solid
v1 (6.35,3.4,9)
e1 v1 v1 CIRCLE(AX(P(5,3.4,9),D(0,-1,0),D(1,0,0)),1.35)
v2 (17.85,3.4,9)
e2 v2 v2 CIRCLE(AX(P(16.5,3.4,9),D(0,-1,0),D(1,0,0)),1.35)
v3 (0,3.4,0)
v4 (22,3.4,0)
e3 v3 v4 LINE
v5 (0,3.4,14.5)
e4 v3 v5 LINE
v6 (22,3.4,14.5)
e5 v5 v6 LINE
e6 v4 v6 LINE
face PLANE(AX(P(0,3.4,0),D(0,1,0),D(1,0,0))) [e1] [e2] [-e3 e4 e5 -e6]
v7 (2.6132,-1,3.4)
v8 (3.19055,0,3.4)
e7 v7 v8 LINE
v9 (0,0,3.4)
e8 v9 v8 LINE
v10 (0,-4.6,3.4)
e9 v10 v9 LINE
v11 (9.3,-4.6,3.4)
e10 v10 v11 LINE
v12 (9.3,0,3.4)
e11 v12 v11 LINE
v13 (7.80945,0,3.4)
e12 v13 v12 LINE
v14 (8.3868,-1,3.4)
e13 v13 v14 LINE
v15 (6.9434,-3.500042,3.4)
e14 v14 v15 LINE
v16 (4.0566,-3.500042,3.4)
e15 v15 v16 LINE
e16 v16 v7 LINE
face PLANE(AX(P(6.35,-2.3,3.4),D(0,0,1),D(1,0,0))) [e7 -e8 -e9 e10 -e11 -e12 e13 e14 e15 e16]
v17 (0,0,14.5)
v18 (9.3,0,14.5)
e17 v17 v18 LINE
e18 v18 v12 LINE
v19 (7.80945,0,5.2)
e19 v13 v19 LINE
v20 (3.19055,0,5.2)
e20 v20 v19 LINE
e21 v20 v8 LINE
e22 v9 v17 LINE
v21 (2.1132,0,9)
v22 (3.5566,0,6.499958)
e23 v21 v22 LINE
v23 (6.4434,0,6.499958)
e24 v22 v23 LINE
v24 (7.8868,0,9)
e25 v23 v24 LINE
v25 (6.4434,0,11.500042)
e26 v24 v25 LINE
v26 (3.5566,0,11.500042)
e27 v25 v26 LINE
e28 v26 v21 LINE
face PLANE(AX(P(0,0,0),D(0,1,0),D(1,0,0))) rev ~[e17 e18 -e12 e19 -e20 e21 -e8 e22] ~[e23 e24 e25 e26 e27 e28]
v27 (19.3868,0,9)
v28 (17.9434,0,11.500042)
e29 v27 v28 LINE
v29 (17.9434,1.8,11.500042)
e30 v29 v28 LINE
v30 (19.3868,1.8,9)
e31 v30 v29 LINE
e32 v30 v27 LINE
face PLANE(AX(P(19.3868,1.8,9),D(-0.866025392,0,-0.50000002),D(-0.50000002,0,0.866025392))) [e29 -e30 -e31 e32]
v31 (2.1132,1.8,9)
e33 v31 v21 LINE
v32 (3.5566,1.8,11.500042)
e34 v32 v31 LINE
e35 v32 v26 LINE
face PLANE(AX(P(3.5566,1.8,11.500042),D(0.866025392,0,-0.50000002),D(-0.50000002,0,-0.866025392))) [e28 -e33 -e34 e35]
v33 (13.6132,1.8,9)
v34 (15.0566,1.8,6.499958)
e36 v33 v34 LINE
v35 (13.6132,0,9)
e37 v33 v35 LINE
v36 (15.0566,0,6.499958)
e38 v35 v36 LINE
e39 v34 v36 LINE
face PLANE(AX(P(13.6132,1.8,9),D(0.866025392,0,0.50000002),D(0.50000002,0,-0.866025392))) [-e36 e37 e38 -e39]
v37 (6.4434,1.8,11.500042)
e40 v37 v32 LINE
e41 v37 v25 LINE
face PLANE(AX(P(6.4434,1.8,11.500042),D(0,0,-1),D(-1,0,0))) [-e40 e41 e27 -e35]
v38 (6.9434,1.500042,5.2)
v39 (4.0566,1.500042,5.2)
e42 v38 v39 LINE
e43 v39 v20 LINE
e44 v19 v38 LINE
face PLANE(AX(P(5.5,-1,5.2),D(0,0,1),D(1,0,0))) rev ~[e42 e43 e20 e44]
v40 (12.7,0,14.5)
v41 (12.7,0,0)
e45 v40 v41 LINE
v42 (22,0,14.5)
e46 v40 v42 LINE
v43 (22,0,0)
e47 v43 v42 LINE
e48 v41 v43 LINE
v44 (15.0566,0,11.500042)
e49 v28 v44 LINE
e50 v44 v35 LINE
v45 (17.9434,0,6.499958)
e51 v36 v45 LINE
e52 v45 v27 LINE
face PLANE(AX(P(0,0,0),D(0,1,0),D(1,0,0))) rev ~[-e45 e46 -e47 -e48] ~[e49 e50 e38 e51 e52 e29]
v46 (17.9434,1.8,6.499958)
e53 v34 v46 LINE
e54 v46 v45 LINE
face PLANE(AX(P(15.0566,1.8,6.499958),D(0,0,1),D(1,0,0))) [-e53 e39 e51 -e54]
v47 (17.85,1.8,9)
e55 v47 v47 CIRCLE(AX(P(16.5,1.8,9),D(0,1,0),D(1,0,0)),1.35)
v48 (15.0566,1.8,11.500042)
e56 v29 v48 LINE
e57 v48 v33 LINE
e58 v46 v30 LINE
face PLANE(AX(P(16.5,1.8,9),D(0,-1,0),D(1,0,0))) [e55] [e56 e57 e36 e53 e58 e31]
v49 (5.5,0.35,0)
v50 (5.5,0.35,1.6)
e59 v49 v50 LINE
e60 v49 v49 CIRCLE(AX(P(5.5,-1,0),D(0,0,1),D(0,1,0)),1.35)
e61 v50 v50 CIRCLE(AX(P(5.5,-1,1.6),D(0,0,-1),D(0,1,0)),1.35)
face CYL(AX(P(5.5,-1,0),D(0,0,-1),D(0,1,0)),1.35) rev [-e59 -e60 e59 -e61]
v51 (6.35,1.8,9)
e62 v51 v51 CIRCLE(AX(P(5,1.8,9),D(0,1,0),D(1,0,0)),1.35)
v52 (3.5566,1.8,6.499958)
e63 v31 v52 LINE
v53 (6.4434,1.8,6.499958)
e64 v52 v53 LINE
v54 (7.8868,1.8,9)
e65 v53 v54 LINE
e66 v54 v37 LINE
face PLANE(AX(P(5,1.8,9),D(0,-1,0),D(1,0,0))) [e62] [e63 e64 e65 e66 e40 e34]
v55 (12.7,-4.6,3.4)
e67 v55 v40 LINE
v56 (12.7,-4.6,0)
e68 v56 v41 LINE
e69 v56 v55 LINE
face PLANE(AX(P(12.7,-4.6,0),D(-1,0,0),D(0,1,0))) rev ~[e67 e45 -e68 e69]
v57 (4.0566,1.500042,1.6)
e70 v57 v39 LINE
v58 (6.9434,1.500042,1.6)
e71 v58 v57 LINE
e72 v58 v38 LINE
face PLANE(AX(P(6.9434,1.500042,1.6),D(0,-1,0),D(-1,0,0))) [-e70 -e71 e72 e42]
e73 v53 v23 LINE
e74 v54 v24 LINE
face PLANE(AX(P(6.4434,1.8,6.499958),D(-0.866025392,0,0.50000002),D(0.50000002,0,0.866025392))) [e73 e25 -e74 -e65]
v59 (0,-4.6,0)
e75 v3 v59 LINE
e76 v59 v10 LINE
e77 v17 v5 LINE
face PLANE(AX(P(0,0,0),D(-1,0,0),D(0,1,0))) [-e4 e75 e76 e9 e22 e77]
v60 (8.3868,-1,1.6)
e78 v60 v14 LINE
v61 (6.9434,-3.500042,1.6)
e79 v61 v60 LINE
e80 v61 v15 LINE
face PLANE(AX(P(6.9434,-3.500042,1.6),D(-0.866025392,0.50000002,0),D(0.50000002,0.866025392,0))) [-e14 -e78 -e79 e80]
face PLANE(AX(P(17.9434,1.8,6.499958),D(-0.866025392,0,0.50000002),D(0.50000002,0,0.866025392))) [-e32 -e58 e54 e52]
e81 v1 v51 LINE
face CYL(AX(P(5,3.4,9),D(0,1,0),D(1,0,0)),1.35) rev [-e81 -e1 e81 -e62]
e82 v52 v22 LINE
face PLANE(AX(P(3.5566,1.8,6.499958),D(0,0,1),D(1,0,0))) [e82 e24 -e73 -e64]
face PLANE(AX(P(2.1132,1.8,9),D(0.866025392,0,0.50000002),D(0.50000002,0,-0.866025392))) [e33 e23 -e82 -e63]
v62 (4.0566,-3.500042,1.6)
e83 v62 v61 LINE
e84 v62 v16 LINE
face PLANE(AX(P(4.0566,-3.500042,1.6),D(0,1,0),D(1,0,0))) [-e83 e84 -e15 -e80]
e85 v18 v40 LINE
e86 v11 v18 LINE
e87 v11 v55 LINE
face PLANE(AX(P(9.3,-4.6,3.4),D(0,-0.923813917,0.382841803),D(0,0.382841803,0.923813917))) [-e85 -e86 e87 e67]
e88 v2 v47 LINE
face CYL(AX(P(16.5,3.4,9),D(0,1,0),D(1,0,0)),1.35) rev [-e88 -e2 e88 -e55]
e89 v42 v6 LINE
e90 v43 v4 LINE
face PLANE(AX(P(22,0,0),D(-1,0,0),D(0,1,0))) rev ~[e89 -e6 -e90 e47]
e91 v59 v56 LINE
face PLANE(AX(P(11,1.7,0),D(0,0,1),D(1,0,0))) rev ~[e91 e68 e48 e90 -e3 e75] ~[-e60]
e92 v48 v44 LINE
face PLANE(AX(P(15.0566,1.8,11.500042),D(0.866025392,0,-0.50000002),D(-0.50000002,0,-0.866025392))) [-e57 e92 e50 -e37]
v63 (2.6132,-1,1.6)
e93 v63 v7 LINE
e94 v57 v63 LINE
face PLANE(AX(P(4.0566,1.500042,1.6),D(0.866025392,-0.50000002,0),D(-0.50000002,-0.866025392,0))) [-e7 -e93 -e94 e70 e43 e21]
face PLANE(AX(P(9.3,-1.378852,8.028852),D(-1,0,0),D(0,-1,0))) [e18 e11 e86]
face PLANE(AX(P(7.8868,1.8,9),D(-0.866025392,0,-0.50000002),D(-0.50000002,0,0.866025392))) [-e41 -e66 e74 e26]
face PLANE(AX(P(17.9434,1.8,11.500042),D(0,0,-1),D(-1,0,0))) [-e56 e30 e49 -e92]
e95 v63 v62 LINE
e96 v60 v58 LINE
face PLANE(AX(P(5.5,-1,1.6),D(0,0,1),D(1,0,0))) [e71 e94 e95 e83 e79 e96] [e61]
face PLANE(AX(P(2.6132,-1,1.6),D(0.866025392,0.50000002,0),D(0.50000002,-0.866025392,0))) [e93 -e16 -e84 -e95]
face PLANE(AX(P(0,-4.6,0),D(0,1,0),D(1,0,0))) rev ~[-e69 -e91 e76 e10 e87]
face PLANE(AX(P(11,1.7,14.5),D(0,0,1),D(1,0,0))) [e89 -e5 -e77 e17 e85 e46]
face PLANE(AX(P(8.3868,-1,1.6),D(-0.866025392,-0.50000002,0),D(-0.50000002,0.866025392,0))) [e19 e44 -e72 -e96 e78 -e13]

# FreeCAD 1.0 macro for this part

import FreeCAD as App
import Part
import Sketcher
from FreeCAD import Vector
Q = App.Units.Quantity

doc = App.newDocument("Part")
params = doc.addObject("Spreadsheet::Sheet", "Params")
for row, (alias, value) in enumerate([
    ("pad1_length", "3.6 mm"),
    ("sketch2_diameter", "2.7 mm"),
    ("pad2_length", "3.4 mm"),
    ("pad3_length", "1.8 mm"),
    ("sketch4_diameter", "2.7 mm"),
    ("pad4_length", "3.4 mm"),
    ("pad5_length", "1.8 mm"),
    ("sketch6_diameter", "2.7 mm"),
    ("pad6_length", "3.4 mm"),
    ("sketch7_width", "22 mm"),
    ("sketch7_height", "3.4 mm"),
    ("pad7_length", "14.5 mm"),
    ("sketch8_width", "12.7 mm"),
    ("sketch8_height", "4.6 mm"),
    ("pad8_length", "3.4 mm"),
    ("sketch9_width", "4.6 mm"),
    ("sketch9_height", "11.1 mm"),
    ("pad9_length", "3.4 mm"),
], start=1):
    params.set(f"A{row}", alias)
    params.set(f"B{row}", "=" + value)
    params.setAlias(f"B{row}", alias)

body = doc.addObject("PartDesign::Body", "Body")

# Sketch on XY plane
sketch1 = body.newObject("Sketcher::SketchObject", "Sketch")
sketch1.AttachmentSupport = (doc.getObject("XY_Plane"), [""])
sketch1.MapMode = "FlatFace"
sketch1.AttachmentOffset = App.Placement(Vector(0, 0, 1.6), App.Rotation())
sketch1.addGeometry([
    Part.LineSegment(Vector(8.4, -1, 0), Vector(6.9, 1.5, 0)),  # 0
    Part.LineSegment(Vector(6.9, 1.5, 0), Vector(4.1, 1.5, 0)),  # 1
    Part.LineSegment(Vector(4.1, 1.5, 0), Vector(2.6, -1, 0)),  # 2
    Part.LineSegment(Vector(2.6, -1, 0), Vector(4.1, -3.5, 0)),  # 3
    Part.LineSegment(Vector(4.1, -3.5, 0), Vector(6.9, -3.5, 0)),  # 4
    Part.LineSegment(Vector(6.9, -3.5, 0), Vector(8.4, -1, 0)),  # 5
], False)
sketch1.addConstraint([
    Sketcher.Constraint("Coincident", 0, 2, 1, 1),
    Sketcher.Constraint("Coincident", 1, 2, 2, 1),
    Sketcher.Constraint("Coincident", 2, 2, 3, 1),
    Sketcher.Constraint("Coincident", 3, 2, 4, 1),
    Sketcher.Constraint("Coincident", 4, 2, 5, 1),
    Sketcher.Constraint("Coincident", 5, 2, 0, 1),
    Sketcher.Constraint("Horizontal", 1),
    Sketcher.Constraint("Horizontal", 4),
    Sketcher.Constraint("Parallel", 0, 3),
    Sketcher.Constraint("Parallel", 2, 5),
    Sketcher.Constraint("Horizontal", 2, 2, 5, 2),
    Sketcher.Constraint("Vertical", 1, 2, 3, 2),
    Sketcher.Constraint("Vertical", 0, 2, 4, 2),
    Sketcher.Constraint("Angle", 0, Q("120.000001 deg")),
    Sketcher.Constraint("DistanceY", 2, 2, -1, 1, Q("1 mm")),
    Sketcher.Constraint("DistanceX", 1, 2, 1, 1, Q("2.8868 mm")),
    Sketcher.Constraint("Distance", 0, Q("2.8868 mm")),
    Sketcher.Constraint("DistanceX", -1, 1, 0, 2, Q("6.9434 mm")),
])
pad1 = body.newObject("PartDesign::Pad", "Pad")
pad1.Profile = sketch1
pad1.setExpression("Length", "Params.pad1_length")
body2 = doc.addObject("PartDesign::Body", "Body001")

# Sketch on XY plane
sketch2 = body2.newObject("Sketcher::SketchObject", "Sketch001")
sketch2.AttachmentSupport = (doc.getObject("XY_Plane001"), [""])
sketch2.MapMode = "FlatFace"
sketch2.addGeometry(Part.Circle(Vector(5.5, -1, 0), Vector(0, 0, 1), 1.4), False)
sketch2.addConstraint([
    Sketcher.Constraint("Diameter", 0, Q("2.7 mm")),
    Sketcher.Constraint("DistanceY", 0, 3, -1, 1, Q("1 mm")),
    Sketcher.Constraint("DistanceX", -1, 1, 0, 3, Q("5.5 mm")),
])
sketch2.setExpression("Constraints[0]", "Params.sketch2_diameter")
pad2 = body2.newObject("PartDesign::Pad", "Pad001")
pad2.Profile = sketch2
pad2.setExpression("Length", "Params.pad2_length")
doc.recompute()

boolean = body2.newObject("PartDesign::Boolean", "Boolean")
boolean.Type = "Fuse"
boolean.addObjects([body])
body3 = doc.addObject("PartDesign::Body", "Body002")

# Sketch on XZ plane
sketch3 = body3.newObject("Sketcher::SketchObject", "Sketch002")
sketch3.AttachmentSupport = (doc.getObject("XZ_Plane002"), [""])
sketch3.MapMode = "FlatFace"
sketch3.AttachmentOffset = App.Placement(Vector(0, 0, -1.8), App.Rotation())
sketch3.addGeometry([
    Part.LineSegment(Vector(19.4, 9, 0), Vector(17.9, 11.5, 0)),  # 0
    Part.LineSegment(Vector(17.9, 11.5, 0), Vector(15.1, 11.5, 0)),  # 1
    Part.LineSegment(Vector(15.1, 11.5, 0), Vector(13.6, 9, 0)),  # 2
    Part.LineSegment(Vector(13.6, 9, 0), Vector(15.1, 6.5, 0)),  # 3
    Part.LineSegment(Vector(15.1, 6.5, 0), Vector(17.9, 6.5, 0)),  # 4
    Part.LineSegment(Vector(17.9, 6.5, 0), Vector(19.4, 9, 0)),  # 5
], False)
sketch3.addConstraint([
    Sketcher.Constraint("Coincident", 0, 2, 1, 1),
    Sketcher.Constraint("Coincident", 1, 2, 2, 1),
    Sketcher.Constraint("Coincident", 2, 2, 3, 1),
    Sketcher.Constraint("Coincident", 3, 2, 4, 1),
    Sketcher.Constraint("Coincident", 4, 2, 5, 1),
    Sketcher.Constraint("Coincident", 5, 2, 0, 1),
    Sketcher.Constraint("Horizontal", 1),
    Sketcher.Constraint("Horizontal", 4),
    Sketcher.Constraint("Parallel", 0, 3),
    Sketcher.Constraint("Parallel", 2, 5),
    Sketcher.Constraint("Horizontal", 2, 2, 5, 2),
    Sketcher.Constraint("Vertical", 1, 2, 3, 2),
    Sketcher.Constraint("Vertical", 0, 2, 4, 2),
    Sketcher.Constraint("Angle", 0, Q("120.000001 deg")),
    Sketcher.Constraint("DistanceY", -1, 1, 2, 2, Q("9 mm")),
    Sketcher.Constraint("DistanceX", 1, 2, 1, 1, Q("2.8868 mm")),
    Sketcher.Constraint("Distance", 0, Q("2.8868 mm")),
    Sketcher.Constraint("DistanceX", -1, 1, 0, 2, Q("17.9434 mm")),
])
pad3 = body3.newObject("PartDesign::Pad", "Pad002")
pad3.Profile = sketch3
pad3.setExpression("Length", "Params.pad3_length")
body4 = doc.addObject("PartDesign::Body", "Body003")

# Sketch on XZ plane
sketch4 = body4.newObject("Sketcher::SketchObject", "Sketch003")
sketch4.AttachmentSupport = (doc.getObject("XZ_Plane003"), [""])
sketch4.MapMode = "FlatFace"
sketch4.AttachmentOffset = App.Placement(Vector(0, 0, -3.4), App.Rotation())
sketch4.addGeometry(Part.Circle(Vector(16.5, 9, 0), Vector(0, 0, 1), 1.4), False)
sketch4.addConstraint([
    Sketcher.Constraint("Diameter", 0, Q("2.7 mm")),
    Sketcher.Constraint("DistanceY", -1, 1, 0, 3, Q("9 mm")),
    Sketcher.Constraint("DistanceX", -1, 1, 0, 3, Q("16.5 mm")),
])
sketch4.setExpression("Constraints[0]", "Params.sketch4_diameter")
pad4 = body4.newObject("PartDesign::Pad", "Pad003")
pad4.Profile = sketch4
pad4.setExpression("Length", "Params.pad4_length")
doc.recompute()

boolean2 = body4.newObject("PartDesign::Boolean", "Boolean001")
boolean2.Type = "Fuse"
boolean2.addObjects([body3])
body5 = doc.addObject("PartDesign::Body", "Body004")

# Sketch on XZ plane
sketch5 = body5.newObject("Sketcher::SketchObject", "Sketch004")
sketch5.AttachmentSupport = (doc.getObject("XZ_Plane004"), [""])
sketch5.MapMode = "FlatFace"
sketch5.AttachmentOffset = App.Placement(Vector(0, 0, -1.8), App.Rotation())
sketch5.addGeometry([
    Part.LineSegment(Vector(7.9, 9, 0), Vector(6.4, 11.5, 0)),  # 0
    Part.LineSegment(Vector(6.4, 11.5, 0), Vector(3.6, 11.5, 0)),  # 1
    Part.LineSegment(Vector(3.6, 11.5, 0), Vector(2.1, 9, 0)),  # 2
    Part.LineSegment(Vector(2.1, 9, 0), Vector(3.6, 6.5, 0)),  # 3
    Part.LineSegment(Vector(3.6, 6.5, 0), Vector(6.4, 6.5, 0)),  # 4
    Part.LineSegment(Vector(6.4, 6.5, 0), Vector(7.9, 9, 0)),  # 5
], False)
sketch5.addConstraint([
    Sketcher.Constraint("Coincident", 0, 2, 1, 1),
    Sketcher.Constraint("Coincident", 1, 2, 2, 1),
    Sketcher.Constraint("Coincident", 2, 2, 3, 1),
    Sketcher.Constraint("Coincident", 3, 2, 4, 1),
    Sketcher.Constraint("Coincident", 4, 2, 5, 1),
    Sketcher.Constraint("Coincident", 5, 2, 0, 1),
    Sketcher.Constraint("Horizontal", 1),
    Sketcher.Constraint("Horizontal", 4),
    Sketcher.Constraint("Parallel", 0, 3),
    Sketcher.Constraint("Parallel", 2, 5),
    Sketcher.Constraint("Horizontal", 2, 2, 5, 2),
    Sketcher.Constraint("Vertical", 1, 2, 3, 2),
    Sketcher.Constraint("Vertical", 0, 2, 4, 2),
    Sketcher.Constraint("Angle", 0, Q("120.000001 deg")),
    Sketcher.Constraint("DistanceY", -1, 1, 2, 2, Q("9 mm")),
    Sketcher.Constraint("DistanceX", 1, 2, 1, 1, Q("2.8868 mm")),
    Sketcher.Constraint("Distance", 0, Q("2.8868 mm")),
    Sketcher.Constraint("DistanceX", -1, 1, 0, 2, Q("6.4434 mm")),
])
pad5 = body5.newObject("PartDesign::Pad", "Pad004")
pad5.Profile = sketch5
pad5.setExpression("Length", "Params.pad5_length")
body6 = doc.addObject("PartDesign::Body", "Body005")

# Sketch on XZ plane
sketch6 = body6.newObject("Sketcher::SketchObject", "Sketch005")
sketch6.AttachmentSupport = (doc.getObject("XZ_Plane005"), [""])
sketch6.MapMode = "FlatFace"
sketch6.AttachmentOffset = App.Placement(Vector(0, 0, -3.4), App.Rotation())
sketch6.addGeometry(Part.Circle(Vector(5, 9, 0), Vector(0, 0, 1), 1.4), False)
sketch6.addConstraint([
    Sketcher.Constraint("Diameter", 0, Q("2.7 mm")),
    Sketcher.Constraint("DistanceX", -1, 1, 0, 3, Q("5 mm")),
    Sketcher.Constraint("DistanceY", -1, 1, 0, 3, Q("9 mm")),
])
sketch6.setExpression("Constraints[0]", "Params.sketch6_diameter")
pad6 = body6.newObject("PartDesign::Pad", "Pad005")
pad6.Profile = sketch6
pad6.setExpression("Length", "Params.pad6_length")
doc.recompute()

boolean3 = body6.newObject("PartDesign::Boolean", "Boolean002")
boolean3.Type = "Fuse"
boolean3.addObjects([body5])
body7 = doc.addObject("PartDesign::Body", "Body006")

# Sketch on XY plane
sketch7 = body7.newObject("Sketcher::SketchObject", "Sketch006")
sketch7.AttachmentSupport = (doc.getObject("XY_Plane006"), [""])
sketch7.MapMode = "FlatFace"
sketch7.addGeometry([
    Part.LineSegment(Vector(0, 3.4, 0), Vector(0, 0, 0)),
    Part.LineSegment(Vector(0, 0, 0), Vector(22, 0, 0)),
    Part.LineSegment(Vector(22, 0, 0), Vector(22, 3.4, 0)),
    Part.LineSegment(Vector(22, 3.4, 0), Vector(0, 3.4, 0)),
], False)
sketch7.addConstraint([
    Sketcher.Constraint("Coincident", 0, 2, 1, 1),
    Sketcher.Constraint("Coincident", 1, 2, 2, 1),
    Sketcher.Constraint("Coincident", 2, 2, 3, 1),
    Sketcher.Constraint("Coincident", 3, 2, 0, 1),
    Sketcher.Constraint("Vertical", 0),
    Sketcher.Constraint("Horizontal", 1),
    Sketcher.Constraint("Vertical", 2),
    Sketcher.Constraint("Horizontal", 3),
    Sketcher.Constraint("Coincident", 0, 2, -1, 1),
    Sketcher.Constraint("DistanceX", 1, 1, 1, 2, Q("22 mm")),
    Sketcher.Constraint("DistanceY", 0, 2, 0, 1, Q("3.4 mm")),
])
sketch7.setExpression("Constraints[9]", "Params.sketch7_width")
sketch7.setExpression("Constraints[10]", "Params.sketch7_height")
pad7 = body7.newObject("PartDesign::Pad", "Pad006")
pad7.Profile = sketch7
pad7.setExpression("Length", "Params.pad7_length")
doc.recompute()

boolean4 = body7.newObject("PartDesign::Boolean", "Boolean003")
boolean4.Type = "Cut"
boolean4.addObjects([body6])
doc.recompute()

boolean5 = body7.newObject("PartDesign::Boolean", "Boolean004")
boolean5.Type = "Cut"
boolean5.addObjects([body4])
body8 = doc.addObject("PartDesign::Body", "Body007")

# Sketch on XY plane
sketch8 = body8.newObject("Sketcher::SketchObject", "Sketch007")
sketch8.AttachmentSupport = (doc.getObject("XY_Plane007"), [""])
sketch8.MapMode = "FlatFace"
sketch8.addGeometry([
    Part.LineSegment(Vector(0, 0, 0), Vector(0, -4.6, 0)),
    Part.LineSegment(Vector(0, -4.6, 0), Vector(12.7, -4.6, 0)),
    Part.LineSegment(Vector(12.7, -4.6, 0), Vector(12.7, 0, 0)),
    Part.LineSegment(Vector(12.7, 0, 0), Vector(0, 0, 0)),
], False)
sketch8.addConstraint([
    Sketcher.Constraint("Coincident", 0, 2, 1, 1),
    Sketcher.Constraint("Coincident", 1, 2, 2, 1),
    Sketcher.Constraint("Coincident", 2, 2, 3, 1),
    Sketcher.Constraint("Coincident", 3, 2, 0, 1),
    Sketcher.Constraint("Vertical", 0),
    Sketcher.Constraint("Horizontal", 1),
    Sketcher.Constraint("Vertical", 2),
    Sketcher.Constraint("Horizontal", 3),
    Sketcher.Constraint("Coincident", 3, 2, -1, 1),
    Sketcher.Constraint("DistanceX", 1, 1, 1, 2, Q("12.7 mm")),
    Sketcher.Constraint("DistanceY", 0, 2, 0, 1, Q("4.6 mm")),
])
sketch8.setExpression("Constraints[9]", "Params.sketch8_width")
sketch8.setExpression("Constraints[10]", "Params.sketch8_height")
pad8 = body8.newObject("PartDesign::Pad", "Pad007")
pad8.Profile = sketch8
pad8.setExpression("Length", "Params.pad8_length")
doc.recompute()

boolean6 = body8.newObject("PartDesign::Boolean", "Boolean005")
boolean6.Type = "Fuse"
boolean6.addObjects([body7])
doc.recompute()

boolean7 = body8.newObject("PartDesign::Boolean", "Boolean006")
boolean7.Type = "Cut"
boolean7.addObjects([body2])
body9 = doc.addObject("PartDesign::Body", "Body008")

# Sketch on YZ plane
sketch9 = body9.newObject("Sketcher::SketchObject", "Sketch008")
sketch9.AttachmentSupport = (doc.getObject("YZ_Plane008"), [""])
sketch9.MapMode = "FlatFace"
sketch9.addGeometry([
    Part.LineSegment(Vector(0, 3.4, 0), Vector(0, 14.5, 0)),
    Part.LineSegment(Vector(0, 14.5, 0), Vector(-4.6, 3.4, 0)),
    Part.LineSegment(Vector(-4.6, 3.4, 0), Vector(0, 3.4, 0)),
], False)
sketch9.addConstraint([
    Sketcher.Constraint("Coincident", 0, 2, 1, 1),
    Sketcher.Constraint("Coincident", 1, 2, 2, 1),
    Sketcher.Constraint("Coincident", 2, 2, 0, 1),
    Sketcher.Constraint("Vertical", 0),
    Sketcher.Constraint("Horizontal", 2),
    Sketcher.Constraint("PointOnObject", 0, 2, -2),
    Sketcher.Constraint("DistanceX", 2, 1, 2, 2, Q("4.6 mm")),
    Sketcher.Constraint("DistanceY", 0, 1, 0, 2, Q("11.1 mm")),
    Sketcher.Constraint("DistanceY", -1, 1, 0, 2, Q("14.5 mm")),
])
sketch9.setExpression("Constraints[6]", "Params.sketch9_width")
sketch9.setExpression("Constraints[7]", "Params.sketch9_height")
pad9 = body9.newObject("PartDesign::Pad", "Pad008")
pad9.Profile = sketch9
pad9.setExpression("Length", "Params.pad9_length")
body10 = doc.addObject("PartDesign::Body", "Body009")
doc.recompute()

body9.Placement = App.Placement(Vector(9.3, 0, 0), App.Rotation(Vector(0, 0, 1), 0))
boolean8 = body10.newObject("PartDesign::Boolean", "Boolean007")
boolean8.Type = "Fuse"
boolean8.addObjects([body9])
doc.recompute()

boolean9 = body10.newObject("PartDesign::Boolean", "Boolean008")
boolean9.Type = "Fuse"
boolean9.addObjects([body8])

doc.recompute()
